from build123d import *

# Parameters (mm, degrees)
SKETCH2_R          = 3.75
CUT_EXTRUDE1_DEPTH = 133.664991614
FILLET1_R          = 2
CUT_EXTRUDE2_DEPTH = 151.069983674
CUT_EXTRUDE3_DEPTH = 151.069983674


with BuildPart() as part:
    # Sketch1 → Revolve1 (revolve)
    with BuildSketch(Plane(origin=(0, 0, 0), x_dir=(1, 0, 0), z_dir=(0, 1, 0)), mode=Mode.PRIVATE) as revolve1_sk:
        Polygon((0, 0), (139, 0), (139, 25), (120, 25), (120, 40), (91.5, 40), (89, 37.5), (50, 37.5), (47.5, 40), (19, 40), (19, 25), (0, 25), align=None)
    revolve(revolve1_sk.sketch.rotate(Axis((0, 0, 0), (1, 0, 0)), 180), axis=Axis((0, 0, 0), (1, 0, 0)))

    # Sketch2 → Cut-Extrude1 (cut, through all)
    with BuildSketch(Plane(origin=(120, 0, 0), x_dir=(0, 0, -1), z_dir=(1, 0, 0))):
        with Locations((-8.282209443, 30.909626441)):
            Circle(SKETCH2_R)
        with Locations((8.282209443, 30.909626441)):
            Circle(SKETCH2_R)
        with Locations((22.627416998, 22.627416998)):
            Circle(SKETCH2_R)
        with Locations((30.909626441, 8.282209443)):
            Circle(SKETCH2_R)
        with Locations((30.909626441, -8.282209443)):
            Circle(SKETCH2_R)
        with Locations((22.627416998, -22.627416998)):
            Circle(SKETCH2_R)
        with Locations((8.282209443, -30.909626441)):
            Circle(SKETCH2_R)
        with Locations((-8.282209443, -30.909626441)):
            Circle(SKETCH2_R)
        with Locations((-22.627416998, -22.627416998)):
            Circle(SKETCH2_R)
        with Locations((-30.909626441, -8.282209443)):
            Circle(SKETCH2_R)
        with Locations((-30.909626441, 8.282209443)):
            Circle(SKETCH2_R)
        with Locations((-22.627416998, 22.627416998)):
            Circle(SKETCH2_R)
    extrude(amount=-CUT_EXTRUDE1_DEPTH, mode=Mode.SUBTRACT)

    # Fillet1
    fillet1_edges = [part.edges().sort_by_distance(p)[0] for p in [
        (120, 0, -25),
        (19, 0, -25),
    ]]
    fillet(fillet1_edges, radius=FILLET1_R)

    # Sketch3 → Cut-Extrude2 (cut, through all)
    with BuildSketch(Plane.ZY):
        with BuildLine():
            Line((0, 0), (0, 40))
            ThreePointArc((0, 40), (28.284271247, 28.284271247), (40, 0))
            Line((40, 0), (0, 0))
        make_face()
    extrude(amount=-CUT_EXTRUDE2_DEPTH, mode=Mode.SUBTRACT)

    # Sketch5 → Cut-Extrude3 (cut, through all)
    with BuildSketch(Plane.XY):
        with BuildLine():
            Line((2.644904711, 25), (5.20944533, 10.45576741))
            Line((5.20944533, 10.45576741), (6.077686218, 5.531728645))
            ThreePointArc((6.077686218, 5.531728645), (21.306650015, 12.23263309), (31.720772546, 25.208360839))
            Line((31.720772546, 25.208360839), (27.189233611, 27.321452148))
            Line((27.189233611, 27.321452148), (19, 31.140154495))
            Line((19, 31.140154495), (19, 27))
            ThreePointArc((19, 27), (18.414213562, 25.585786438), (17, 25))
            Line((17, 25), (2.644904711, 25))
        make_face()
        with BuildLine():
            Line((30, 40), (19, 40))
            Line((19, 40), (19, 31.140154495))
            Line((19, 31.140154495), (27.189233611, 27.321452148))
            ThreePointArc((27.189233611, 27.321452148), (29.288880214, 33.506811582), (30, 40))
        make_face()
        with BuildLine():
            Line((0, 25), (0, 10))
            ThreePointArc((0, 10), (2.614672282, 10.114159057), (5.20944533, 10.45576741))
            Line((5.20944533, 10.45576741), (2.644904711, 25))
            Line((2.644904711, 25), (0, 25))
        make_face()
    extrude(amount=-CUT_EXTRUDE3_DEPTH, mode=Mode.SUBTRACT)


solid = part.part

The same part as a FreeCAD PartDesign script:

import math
import FreeCAD as App
import Part
import Sketcher
from FreeCAD import Vector
Q = App.Units.Quantity


def edges_at(feature, points):
    """Names of the edges that pass closest to the given points."""
    edges = feature.Shape.Edges
    near = lambda p: min(range(len(edges)), key=lambda i: edges[i].distToShape(Part.Vertex(*p))[0])
    return sorted({f"Edge{near(p) + 1}" for p in points})


def add_polygon(sketch, points):
    """Adds a closed chain of lines whose ends are joined by coincident constraints."""
    first, n = sketch.GeometryCount, len(points)
    for a, b in zip(points, points[1:] + points[:1]):
        sketch.addGeometry(Part.LineSegment(App.Vector(*a, 0), App.Vector(*b, 0)), False)
    for i in range(n):
        sketch.addConstraint(Sketcher.Constraint("Coincident", first + i, 2, first + (i + 1) % n, 1))

doc = App.newDocument("Part")
params = doc.addObject("Spreadsheet::Sheet", "Params")
for row, (alias, value) in enumerate([
    ("sketch1_width", "139 mm"),
    ("sketch1_width2", "19 mm"),
    ("sketch1_width3", "39 mm"),
    ("sketch1_height", "25 mm"),
    ("sketch1_height2", "15 mm"),
    ("revolution_angle", "360 deg"),
    ("sketch2_diameter", "7.5 mm"),
    ("fillet_radius", "2 mm"),
    ("sketch3_radius", "40 mm"),
    ("sketch4_radius", "35 mm"),
    ("sketch4_radius2", "30 mm"),
    ("sketch4_radius3", "2 mm"),
    ("sketch4_width", "11 mm"),
    ("sketch4_height", "13 mm"),
], start=1):
    params.set(f"A{row}", alias)
    params.set(f"B{row}", "=" + value)
    params.setAlias(f"B{row}", alias)

body = doc.addObject("PartDesign::Body", "Body")

# Sketch on XZ plane
sketch1 = body.newObject("Sketcher::SketchObject", "Sketch")
sketch1.AttachmentSupport = (doc.getObject("XZ_Plane"), [""])
sketch1.MapMode = "FlatFace"
add_polygon(sketch1, [(0, 0), (139, 0), (139, -25), (120, -25), (120, -40), (91.5, -40), (89, -37.5), (50, -37.5), (47.5, -40), (19, -40), (19, -25), (0, -25)])  # lines 0-11
sketch1.addConstraint(Sketcher.Constraint("Horizontal", 0))
sketch1.addConstraint(Sketcher.Constraint("Vertical", 1))
sketch1.addConstraint(Sketcher.Constraint("Horizontal", 2))
sketch1.addConstraint(Sketcher.Constraint("Vertical", 3))
sketch1.addConstraint(Sketcher.Constraint("Horizontal", 4))
sketch1.addConstraint(Sketcher.Constraint("Horizontal", 6))
sketch1.addConstraint(Sketcher.Constraint("Horizontal", 8))
sketch1.addConstraint(Sketcher.Constraint("Vertical", 9))
sketch1.addConstraint(Sketcher.Constraint("Horizontal", 10))
sketch1.addConstraint(Sketcher.Constraint("Vertical", 11))
sketch1.addConstraint(Sketcher.Constraint("Coincident", 11, 2, -1, 1))
sketch1.addConstraint(Sketcher.Constraint("Perpendicular", 5, 7))
sketch1.addConstraint(Sketcher.Constraint("Horizontal", 4, 2, 7, 2))
sketch1.addConstraint(Sketcher.Constraint("Horizontal", 2, 2, 9, 2))
sketch1.addConstraint(Sketcher.Constraint("Equal", 4, 8))
sketch1.addConstraint(Sketcher.Constraint("Equal", 2, 10))
sketch1.addConstraint(Sketcher.Constraint("Equal", 5, 7))
sketch1.addConstraint(Sketcher.Constraint("DistanceX", 0, 1, 0, 2, Q("139 mm")))
sketch1.addConstraint(Sketcher.Constraint("DistanceX", 2, 2, 2, 1, Q("19 mm")))
sketch1.addConstraint(Sketcher.Constraint("DistanceX", 6, 2, 6, 1, Q("39 mm")))
sketch1.addConstraint(Sketcher.Constraint("DistanceY", 1, 2, 1, 1, Q("25 mm")))
sketch1.addConstraint(Sketcher.Constraint("DistanceY", 3, 2, 3, 1, Q("15 mm")))
sketch1.addConstraint(Sketcher.Constraint("DistanceX", 4, 2, 4, 1, Q("28.5 mm")))
sketch1.setExpression("Constraints[29]", "Params.sketch1_width")
sketch1.setExpression("Constraints[30]", "Params.sketch1_width2")
sketch1.setExpression("Constraints[31]", "Params.sketch1_width3")
sketch1.setExpression("Constraints[32]", "Params.sketch1_height")
sketch1.setExpression("Constraints[33]", "Params.sketch1_height2")
revolution = body.newObject("PartDesign::Revolution", "Revolution")
revolution.Profile = sketch1
revolution.ReferenceAxis = (sketch1, ["H_Axis"])
revolution.setExpression("Angle", "Params.revolution_angle")

# Sketch on YZ plane
sketch2 = body.newObject("Sketcher::SketchObject", "Sketch001")
sketch2.AttachmentSupport = (doc.getObject("YZ_Plane"), [""])
sketch2.MapMode = "FlatFace"
sketch2.AttachmentOffset = App.Placement(Vector(0, 0, 120), App.Rotation())
sketch2.addGeometry(Part.Circle(Vector(30.909626, 8.282209, 0), Vector(0, 0, 1), 3.75), False)
sketch2.addGeometry(Part.Circle(Vector(30.909626, -8.282209, 0), Vector(0, 0, 1), 3.75), False)
sketch2.addGeometry(Part.Circle(Vector(22.627417, -22.627417, 0), Vector(0, 0, 1), 3.75), False)
sketch2.addGeometry(Part.Circle(Vector(8.282209, -30.909626, 0), Vector(0, 0, 1), 3.75), False)
sketch2.addGeometry(Part.Circle(Vector(-8.282209, -30.909626, 0), Vector(0, 0, 1), 3.75), False)
sketch2.addGeometry(Part.Circle(Vector(-22.627417, -22.627417, 0), Vector(0, 0, 1), 3.75), False)
sketch2.addGeometry(Part.Circle(Vector(-30.909626, -8.282209, 0), Vector(0, 0, 1), 3.75), False)
sketch2.addGeometry(Part.Circle(Vector(-30.909626, 8.282209, 0), Vector(0, 0, 1), 3.75), False)
sketch2.addGeometry(Part.Circle(Vector(-22.627417, 22.627417, 0), Vector(0, 0, 1), 3.75), False)
sketch2.addGeometry(Part.Circle(Vector(-8.282209, 30.909626, 0), Vector(0, 0, 1), 3.75), False)
sketch2.addGeometry(Part.Circle(Vector(8.282209, 30.909626, 0), Vector(0, 0, 1), 3.75), False)
sketch2.addGeometry(Part.Circle(Vector(22.627417, 22.627417, 0), Vector(0, 0, 1), 3.75), False)
sketch2.addConstraint(Sketcher.Constraint("Equal", 0, 1))
sketch2.addConstraint(Sketcher.Constraint("Equal", 1, 2))
sketch2.addConstraint(Sketcher.Constraint("Equal", 2, 3))
sketch2.addConstraint(Sketcher.Constraint("Equal", 3, 4))
sketch2.addConstraint(Sketcher.Constraint("Equal", 4, 5))
sketch2.addConstraint(Sketcher.Constraint("Equal", 5, 6))
sketch2.addConstraint(Sketcher.Constraint("Equal", 6, 7))
sketch2.addConstraint(Sketcher.Constraint("Equal", 7, 8))
sketch2.addConstraint(Sketcher.Constraint("Equal", 8, 9))
sketch2.addConstraint(Sketcher.Constraint("Equal", 9, 10))
sketch2.addConstraint(Sketcher.Constraint("Equal", 10, 11))
sketch2.addConstraint(Sketcher.Constraint("Symmetric", 0, 3, 6, 3, -1, 1))
sketch2.addConstraint(Sketcher.Constraint("Symmetric", 1, 3, 7, 3, -1, 1))
sketch2.addConstraint(Sketcher.Constraint("Symmetric", 2, 3, 8, 3, -1, 1))
sketch2.addConstraint(Sketcher.Constraint("Symmetric", 3, 3, 9, 3, -1, 1))
sketch2.addConstraint(Sketcher.Constraint("Symmetric", 4, 3, 10, 3, -1, 1))
sketch2.addConstraint(Sketcher.Constraint("Symmetric", 5, 3, 11, 3, -1, 1))
sketch2.addConstraint(Sketcher.Constraint("Symmetric", 3, 3, 4, 3, -2))
sketch2.addConstraint(Sketcher.Constraint("Symmetric", 2, 3, 5, 3, -2))
sketch2.addConstraint(Sketcher.Constraint("Symmetric", 1, 3, 6, 3, -2))
sketch2.addConstraint(Sketcher.Constraint("Diameter", 0, Q("7.5 mm")))
sketch2.addConstraint(Sketcher.Constraint("DistanceY", -1, 1, 0, 3, Q("8.282209 mm")))
sketch2.addConstraint(Sketcher.Constraint("DistanceX", -1, 1, 3, 3, Q("8.282209 mm")))
sketch2.addConstraint(Sketcher.Constraint("DistanceX", 2, 3, 1, 3, Q("8.282209 mm")))
sketch2.addConstraint(Sketcher.Constraint("DistanceY", 3, 3, 2, 3, Q("8.282209 mm")))
sketch2.addConstraint(Sketcher.Constraint("DistanceX", -1, 1, 0, 3, Q("30.909626 mm")))
sketch2.addConstraint(Sketcher.Constraint("DistanceY", 2, 3, -1, 1, Q("22.627417 mm")))
sketch2.setExpression("Constraints[20]", "Params.sketch2_diameter")
pocket1 = body.newObject("PartDesign::Pocket", "Pocket")
pocket1.Profile = sketch2
pocket1.Type = "ThroughAll"
doc.recompute()

fillet = body.newObject("PartDesign::Fillet", "Fillet")
fillet.Base = (pocket1, edges_at(pocket1, [(120, 0, -25), (19, 0, -25)]))
fillet.setExpression("Radius", "Params.fillet_radius")

# Sketch on YZ plane
sketch3 = body.newObject("Sketcher::SketchObject", "Sketch002")
sketch3.AttachmentSupport = (doc.getObject("YZ_Plane"), [""])
sketch3.MapMode = "FlatFace"
sketch3.addGeometry(Part.LineSegment(Vector(40, 0, 0), Vector(0, 0, 0)), False)
sketch3.addGeometry(Part.LineSegment(Vector(0, 0, 0), Vector(0, 40, 0)), False)
sketch3.addGeometry(Part.ArcOfCircle(Part.Circle(Vector(0, 0, 0), Vector(0, 0, 1), 40), math.radians(0), math.radians(90)), False)
sketch3.addConstraint(Sketcher.Constraint("Coincident", 0, 2, 1, 1))
sketch3.addConstraint(Sketcher.Constraint("Coincident", 1, 2, 2, 2))
sketch3.addConstraint(Sketcher.Constraint("Coincident", 2, 1, 0, 1))
sketch3.addConstraint(Sketcher.Constraint("Horizontal", 0))
sketch3.addConstraint(Sketcher.Constraint("Vertical", 1))
sketch3.addConstraint(Sketcher.Constraint("Coincident", 2, 3, -1, 1))
sketch3.addConstraint(Sketcher.Constraint("Coincident", 0, 2, -1, 1))
sketch3.addConstraint(Sketcher.Constraint("Radius", 2, Q("40 mm")))
sketch3.setExpression("Constraints[7]", "Params.sketch3_radius")
pocket2 = body.newObject("PartDesign::Pocket", "Pocket001")
pocket2.Profile = sketch3
pocket2.Type = "ThroughAll"
pocket2.Reversed = True

# Sketch on XY plane
sketch4 = body.newObject("Sketcher::SketchObject", "Sketch003")
sketch4.AttachmentSupport = (doc.getObject("XY_Plane"), [""])
sketch4.MapMode = "FlatFace"
sketch4.addGeometry(Part.LineSegment(Vector(5.209445, 10.455767, 0), Vector(6.077686, 5.531729, 0)), False)
sketch4.addGeometry(Part.ArcOfCircle(Part.Circle(Vector(0, 40, 0), Vector(0, 0, 1), 35), math.radians(-80), math.radians(-25)), False)
sketch4.addGeometry(Part.LineSegment(Vector(31.720773, 25.208361, 0), Vector(27.189234, 27.321452, 0)), False)
sketch4.addGeometry(Part.ArcOfCircle(Part.Circle(Vector(0, 40, 0), Vector(0, 0, 1), 30), math.radians(-25), math.radians(0)), False)
sketch4.addGeometry(Part.LineSegment(Vector(30, 40, 0), Vector(19, 40, 0)), False)
sketch4.addGeometry(Part.LineSegment(Vector(19, 40, 0), Vector(19, 27, 0)), False)
sketch4.addGeometry(Part.ArcOfCircle(Part.Circle(Vector(17, 27, 0), Vector(0, 0, 1), 2), math.radians(-90), math.radians(0)), False)
sketch4.addGeometry(Part.LineSegment(Vector(17, 25, 0), Vector(0, 25, 0)), False)
sketch4.addGeometry(Part.LineSegment(Vector(0, 25, 0), Vector(0, 10, 0)), False)
sketch4.addGeometry(Part.ArcOfCircle(Part.Circle(Vector(0, 40, 0), Vector(0, 0, 1), 30), math.radians(-90), math.radians(-80)), False)
sketch4.addConstraint(Sketcher.Constraint("Coincident", 0, 2, 1, 1))
sketch4.addConstraint(Sketcher.Constraint("Coincident", 1, 2, 2, 1))
sketch4.addConstraint(Sketcher.Constraint("Coincident", 2, 2, 3, 1))
sketch4.addConstraint(Sketcher.Constraint("Coincident", 3, 2, 4, 1))
sketch4.addConstraint(Sketcher.Constraint("Coincident", 4, 2, 5, 1))
sketch4.addConstraint(Sketcher.Constraint("Tangent", 5, 2, 6, 2))
sketch4.addConstraint(Sketcher.Constraint("Tangent", 6, 1, 7, 1))
sketch4.addConstraint(Sketcher.Constraint("Coincident", 7, 2, 8, 1))
sketch4.addConstraint(Sketcher.Constraint("Coincident", 8, 2, 9, 1))
sketch4.addConstraint(Sketcher.Constraint("Coincident", 9, 2, 0, 1))
sketch4.addConstraint(Sketcher.Constraint("Horizontal", 4))
sketch4.addConstraint(Sketcher.Constraint("Vertical", 5))
sketch4.addConstraint(Sketcher.Constraint("Horizontal", 7))
sketch4.addConstraint(Sketcher.Constraint("Vertical", 8))
sketch4.addConstraint(Sketcher.Constraint("Coincident", 3, 3, 1, 3))
sketch4.addConstraint(Sketcher.Constraint("Coincident", 9, 3, 1, 3))
sketch4.addConstraint(Sketcher.Constraint("Equal", 3, 9))
sketch4.addConstraint(Sketcher.Constraint("PointOnObject", 1, 3, -2))
sketch4.addConstraint(Sketcher.Constraint("PointOnObject", 7, 2, -2))
sketch4.addConstraint(Sketcher.Constraint("Horizontal", 9, 3, 3, 2))
sketch4.addConstraint(Sketcher.Constraint("Radius", 1, Q("35 mm")))
sketch4.addConstraint(Sketcher.Constraint("Radius", 3, Q("30 mm")))
sketch4.addConstraint(Sketcher.Constraint("Radius", 6, Q("2 mm")))
sketch4.addConstraint(Sketcher.Constraint("DistanceX", 4, 2, 4, 1, Q("11 mm")))
sketch4.addConstraint(Sketcher.Constraint("DistanceY", 5, 2, 5, 1, Q("13 mm")))
sketch4.addConstraint(Sketcher.Constraint("Angle", 0, Q("-80 deg")))
sketch4.addConstraint(Sketcher.Constraint("Angle", 2, Q("155 deg")))
sketch4.addConstraint(Sketcher.Constraint("DistanceY", -1, 1, 1, 3, Q("40 mm")))
sketch4.addConstraint(Sketcher.Constraint("DistanceY", -1, 1, 0, 2, Q("5.531729 mm")))
sketch4.addConstraint(Sketcher.Constraint("DistanceY", -1, 1, 1, 2, Q("25.208361 mm")))
sketch4.setExpression("Constraints[20]", "Params.sketch4_radius")
sketch4.setExpression("Constraints[21]", "Params.sketch4_radius2")
sketch4.setExpression("Constraints[22]", "Params.sketch4_radius3")
sketch4.setExpression("Constraints[23]", "Params.sketch4_width")
sketch4.setExpression("Constraints[24]", "Params.sketch4_height")
pocket3 = body.newObject("PartDesign::Pocket", "Pocket002")
pocket3.Profile = sketch4
pocket3.Type = "ThroughAll"

doc.recompute()
